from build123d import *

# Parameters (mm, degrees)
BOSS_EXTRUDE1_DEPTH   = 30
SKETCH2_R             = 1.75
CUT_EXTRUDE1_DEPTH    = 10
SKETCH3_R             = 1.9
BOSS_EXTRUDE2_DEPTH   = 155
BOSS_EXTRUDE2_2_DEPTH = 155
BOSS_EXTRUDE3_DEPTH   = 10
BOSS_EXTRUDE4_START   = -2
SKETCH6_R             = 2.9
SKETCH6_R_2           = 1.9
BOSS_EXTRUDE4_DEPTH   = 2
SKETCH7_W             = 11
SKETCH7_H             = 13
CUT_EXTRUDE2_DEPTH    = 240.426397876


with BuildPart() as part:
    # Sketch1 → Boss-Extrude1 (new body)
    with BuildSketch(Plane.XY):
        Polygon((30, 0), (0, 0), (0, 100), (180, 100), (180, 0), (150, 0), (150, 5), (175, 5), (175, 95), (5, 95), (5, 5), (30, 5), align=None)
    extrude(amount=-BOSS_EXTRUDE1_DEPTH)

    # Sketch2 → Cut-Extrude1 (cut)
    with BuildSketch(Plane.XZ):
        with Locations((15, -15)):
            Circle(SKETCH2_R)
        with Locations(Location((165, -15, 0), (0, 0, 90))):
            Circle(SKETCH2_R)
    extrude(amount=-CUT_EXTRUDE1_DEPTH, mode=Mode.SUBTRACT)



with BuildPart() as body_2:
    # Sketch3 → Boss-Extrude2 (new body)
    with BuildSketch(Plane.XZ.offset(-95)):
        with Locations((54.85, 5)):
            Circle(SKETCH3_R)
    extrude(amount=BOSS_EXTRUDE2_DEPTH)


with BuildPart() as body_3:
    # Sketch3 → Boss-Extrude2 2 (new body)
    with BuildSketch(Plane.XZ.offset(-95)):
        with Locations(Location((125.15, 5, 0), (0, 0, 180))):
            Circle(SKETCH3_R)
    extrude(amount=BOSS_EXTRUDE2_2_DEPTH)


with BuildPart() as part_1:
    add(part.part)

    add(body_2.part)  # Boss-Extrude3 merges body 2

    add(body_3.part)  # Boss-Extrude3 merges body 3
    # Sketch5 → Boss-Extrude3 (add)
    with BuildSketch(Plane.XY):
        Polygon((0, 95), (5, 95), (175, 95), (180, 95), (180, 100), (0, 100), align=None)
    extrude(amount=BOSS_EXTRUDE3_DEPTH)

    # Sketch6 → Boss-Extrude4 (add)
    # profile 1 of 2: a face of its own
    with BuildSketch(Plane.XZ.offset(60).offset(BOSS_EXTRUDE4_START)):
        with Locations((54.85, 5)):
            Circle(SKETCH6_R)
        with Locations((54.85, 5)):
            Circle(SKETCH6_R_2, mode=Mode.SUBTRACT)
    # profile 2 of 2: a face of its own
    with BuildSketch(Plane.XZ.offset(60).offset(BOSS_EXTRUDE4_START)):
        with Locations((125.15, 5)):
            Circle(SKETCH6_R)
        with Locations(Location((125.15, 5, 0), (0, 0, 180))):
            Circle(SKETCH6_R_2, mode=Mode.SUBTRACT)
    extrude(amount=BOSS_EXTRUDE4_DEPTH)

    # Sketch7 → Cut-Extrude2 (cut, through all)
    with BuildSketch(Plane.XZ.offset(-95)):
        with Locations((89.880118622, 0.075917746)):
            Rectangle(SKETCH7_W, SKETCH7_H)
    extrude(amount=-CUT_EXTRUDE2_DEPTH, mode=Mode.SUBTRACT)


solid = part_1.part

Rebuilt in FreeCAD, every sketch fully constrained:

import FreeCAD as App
import Part
import Sketcher

V = App.Vector


def add_polygon(sketch, points):
    """Adds a closed chain of lines whose ends are joined by coincident constraints."""
    first, n = sketch.GeometryCount, len(points)
    for a, b in zip(points, points[1:] + points[:1]):
        sketch.addGeometry(Part.LineSegment(App.Vector(*a, 0), App.Vector(*b, 0)), False)
    for i in range(n):
        sketch.addConstraint(Sketcher.Constraint("Coincident", first + i, 2, first + (i + 1) % n, 1))

doc = App.newDocument("Part")
body = doc.addObject("PartDesign::Body", "Body")

# Sketch on XY plane
sketch1 = body.newObject("Sketcher::SketchObject", "Sketch")
sketch1.AttachmentSupport = (doc.getObject("XY_Plane"), [""])
sketch1.MapMode = "FlatFace"
add_polygon(sketch1, [(0, 0), (30, 0), (30, 5), (5, 5), (5, 95), (175, 95), (175, 5), (150, 5), (150, 0), (180, 0), (180, 100), (0, 100)])  # lines 0-11
sketch1.addConstraint([
    Sketcher.Constraint("Horizontal", 0),
    Sketcher.Constraint("Vertical", 1),
    Sketcher.Constraint("Horizontal", 2),
    Sketcher.Constraint("Vertical", 3),
    Sketcher.Constraint("Horizontal", 4),
    Sketcher.Constraint("Vertical", 5),
    Sketcher.Constraint("Horizontal", 6),
    Sketcher.Constraint("Vertical", 7),
    Sketcher.Constraint("Horizontal", 8),
    Sketcher.Constraint("Vertical", 9),
    Sketcher.Constraint("Horizontal", 10),
    Sketcher.Constraint("Vertical", 11),
    Sketcher.Constraint("Coincident", 11, 2, -1, 1),
    Sketcher.Constraint("PointOnObject", 7, 2, -1),
    Sketcher.Constraint("Horizontal", 2, 2, 5, 2),
    Sketcher.Constraint("Equal", 2, 6),
    Sketcher.Constraint("Equal", 0, 8),
    Sketcher.Constraint("DistanceX", 0, 1, 0, 2, 30.0),
    Sketcher.Constraint("DistanceX", 2, 2, 2, 1, 25.0),
    Sketcher.Constraint("DistanceX", 4, 1, 4, 2, 170.0),
    Sketcher.Constraint("DistanceY", 1, 1, 1, 2, 5.0),
    Sketcher.Constraint("DistanceY", 3, 1, 3, 2, 90.0),
    Sketcher.Constraint("DistanceY", 9, 1, 9, 2, 100.0),
])
pad1 = body.newObject("PartDesign::Pad", "Pad")
pad1.Profile = sketch1
pad1.Length = 30
pad1.Reversed = True

# Sketch on XZ plane
sketch2 = body.newObject("Sketcher::SketchObject", "Sketch001")
sketch2.AttachmentSupport = (doc.getObject("XZ_Plane"), [""])
sketch2.MapMode = "FlatFace"
sketch2.addGeometry([
    Part.Circle(V(15, -15, 0), V(0, 0, 1), 1.75),
    Part.Circle(V(165, -15, 0), V(0, 0, 1), 1.75),
], False)
sketch2.addConstraint([
    Sketcher.Constraint("Equal", 0, 1),
    Sketcher.Constraint("Horizontal", 0, 3, 1, 3),
    Sketcher.Constraint("Diameter", 0, 3.5),
    Sketcher.Constraint("DistanceX", -1, 1, 0, 3, 15.0),
    Sketcher.Constraint("DistanceY", 0, 3, -1, 1, 15.0),
    Sketcher.Constraint("DistanceX", -1, 1, 1, 3, 165.0),
])
pocket1 = body.newObject("PartDesign::Pocket", "Pocket")
pocket1.Profile = sketch2
pocket1.Length = 10
body2 = doc.addObject("PartDesign::Body", "Body001")

# Sketch on XZ plane
sketch3 = body2.newObject("Sketcher::SketchObject", "Sketch002")
sketch3.AttachmentSupport = (doc.getObject("XZ_Plane001"), [""])
sketch3.MapMode = "FlatFace"
sketch3.AttachmentOffset = App.Placement(V(0, 0, -95), App.Rotation())
sketch3.addGeometry(Part.Circle(V(54.85, 5, 0), V(0, 0, 1), 1.9), False)
sketch3.addConstraint([
    Sketcher.Constraint("Diameter", 0, 3.8),
    Sketcher.Constraint("DistanceY", -1, 1, 0, 3, 5.0),
    Sketcher.Constraint("DistanceX", -1, 1, 0, 3, 54.85),
])
pad2 = body2.newObject("PartDesign::Pad", "Pad001")
pad2.Profile = sketch3
pad2.Length = 155
body3 = doc.addObject("PartDesign::Body", "Body002")

# Sketch on XZ plane
sketch4 = body3.newObject("Sketcher::SketchObject", "Sketch003")
sketch4.AttachmentSupport = (doc.getObject("XZ_Plane002"), [""])
sketch4.MapMode = "FlatFace"
sketch4.AttachmentOffset = App.Placement(V(0, 0, -95), App.Rotation())
sketch4.addGeometry(Part.Circle(V(125.15, 5, 0), V(0, 0, 1), 1.9), False)
sketch4.addConstraint([
    Sketcher.Constraint("Diameter", 0, 3.8),
    Sketcher.Constraint("DistanceY", -1, 1, 0, 3, 5.0),
    Sketcher.Constraint("DistanceX", -1, 1, 0, 3, 125.15),
])
pad3 = body3.newObject("PartDesign::Pad", "Pad002")
pad3.Profile = sketch4
pad3.Length = 155
body.AllowCompound = True
doc.recompute()

boolean = body.newObject("PartDesign::Boolean", "Boolean")
boolean.Type = "Fuse"
boolean.addObjects([body2])
doc.recompute()

boolean2 = body.newObject("PartDesign::Boolean", "Boolean001")
boolean2.Type = "Fuse"
boolean2.addObjects([body3])

# Sketch on XY plane
sketch5 = body.newObject("Sketcher::SketchObject", "Sketch004")
sketch5.AttachmentSupport = (doc.getObject("XY_Plane"), [""])
sketch5.MapMode = "FlatFace"
add_polygon(sketch5, [(0, 95), (180, 95), (180, 100), (0, 100)])  # lines 0-3
sketch5.addConstraint([
    Sketcher.Constraint("Horizontal", 0),
    Sketcher.Constraint("Vertical", 1),
    Sketcher.Constraint("Horizontal", 2),
    Sketcher.Constraint("Vertical", 3),
    Sketcher.Constraint("PointOnObject", 2, 2, -2),
    Sketcher.Constraint("DistanceX", 0, 1, 0, 2, 180.0),
    Sketcher.Constraint("DistanceY", 1, 1, 1, 2, 5.0),
    Sketcher.Constraint("DistanceY", -1, 1, 0, 2, 95.0),
])
pad4 = body.newObject("PartDesign::Pad", "Pad003")
pad4.Profile = sketch5
pad4.Length = 10

# Sketch on XZ plane
sketch6 = body.newObject("Sketcher::SketchObject", "Sketch005")
sketch6.AttachmentSupport = (doc.getObject("XZ_Plane"), [""])
sketch6.MapMode = "FlatFace"
sketch6.AttachmentOffset = App.Placement(V(0, 0, 58), App.Rotation())
sketch6.addGeometry([
    Part.Circle(V(54.85, 5, 0), V(0, 0, 1), 2.9),
    Part.Circle(V(54.85, 5, 0), V(0, 0, 1), 1.9),
    Part.Circle(V(125.15, 5, 0), V(0, 0, 1), 2.9),
    Part.Circle(V(125.15, 5, 0), V(0, 0, 1), 1.9),
], False)
sketch6.addConstraint([
    Sketcher.Constraint("Coincident", 1, 3, 0, 3),
    Sketcher.Constraint("Coincident", 3, 3, 2, 3),
    Sketcher.Constraint("Equal", 0, 2),
    Sketcher.Constraint("Equal", 1, 3),
    Sketcher.Constraint("Horizontal", 1, 3, 2, 3),
    Sketcher.Constraint("Diameter", 0, 5.8),
    Sketcher.Constraint("Diameter", 1, 3.8),
    Sketcher.Constraint("DistanceY", -1, 1, 0, 3, 5.0),
    Sketcher.Constraint("DistanceX", 0, 3, 2, 3, 70.3),
    Sketcher.Constraint("DistanceX", -1, 1, 0, 3, 54.85),
])
pad5 = body.newObject("PartDesign::Pad", "Pad004")
pad5.Profile = sketch6
pad5.Length = 2

# Sketch on XZ plane
sketch7 = body.newObject("Sketcher::SketchObject", "Sketch006")
sketch7.AttachmentSupport = (doc.getObject("XZ_Plane"), [""])
sketch7.MapMode = "FlatFace"
sketch7.AttachmentOffset = App.Placement(V(0, 0, -95), App.Rotation())
add_polygon(sketch7, [(84.380119, 6.575918), (84.380119, -6.424082), (95.380119, -6.424082), (95.380119, 6.575918)])  # lines 0-3
sketch7.addConstraint([
    Sketcher.Constraint("Vertical", 0),
    Sketcher.Constraint("Horizontal", 1),
    Sketcher.Constraint("Vertical", 2),
    Sketcher.Constraint("Horizontal", 3),
    Sketcher.Constraint("DistanceX", 1, 1, 1, 2, 11.0),
    Sketcher.Constraint("DistanceY", 0, 2, 0, 1, 13.0),
    Sketcher.Constraint("DistanceX", -1, 1, 0, 2, 84.380119),
    Sketcher.Constraint("DistanceY", 0, 2, -1, 1, 6.424082),
])
pocket2 = body.newObject("PartDesign::Pocket", "Pocket001")
pocket2.Profile = sketch7
pocket2.Type = "ThroughAll"

doc.recompute()
